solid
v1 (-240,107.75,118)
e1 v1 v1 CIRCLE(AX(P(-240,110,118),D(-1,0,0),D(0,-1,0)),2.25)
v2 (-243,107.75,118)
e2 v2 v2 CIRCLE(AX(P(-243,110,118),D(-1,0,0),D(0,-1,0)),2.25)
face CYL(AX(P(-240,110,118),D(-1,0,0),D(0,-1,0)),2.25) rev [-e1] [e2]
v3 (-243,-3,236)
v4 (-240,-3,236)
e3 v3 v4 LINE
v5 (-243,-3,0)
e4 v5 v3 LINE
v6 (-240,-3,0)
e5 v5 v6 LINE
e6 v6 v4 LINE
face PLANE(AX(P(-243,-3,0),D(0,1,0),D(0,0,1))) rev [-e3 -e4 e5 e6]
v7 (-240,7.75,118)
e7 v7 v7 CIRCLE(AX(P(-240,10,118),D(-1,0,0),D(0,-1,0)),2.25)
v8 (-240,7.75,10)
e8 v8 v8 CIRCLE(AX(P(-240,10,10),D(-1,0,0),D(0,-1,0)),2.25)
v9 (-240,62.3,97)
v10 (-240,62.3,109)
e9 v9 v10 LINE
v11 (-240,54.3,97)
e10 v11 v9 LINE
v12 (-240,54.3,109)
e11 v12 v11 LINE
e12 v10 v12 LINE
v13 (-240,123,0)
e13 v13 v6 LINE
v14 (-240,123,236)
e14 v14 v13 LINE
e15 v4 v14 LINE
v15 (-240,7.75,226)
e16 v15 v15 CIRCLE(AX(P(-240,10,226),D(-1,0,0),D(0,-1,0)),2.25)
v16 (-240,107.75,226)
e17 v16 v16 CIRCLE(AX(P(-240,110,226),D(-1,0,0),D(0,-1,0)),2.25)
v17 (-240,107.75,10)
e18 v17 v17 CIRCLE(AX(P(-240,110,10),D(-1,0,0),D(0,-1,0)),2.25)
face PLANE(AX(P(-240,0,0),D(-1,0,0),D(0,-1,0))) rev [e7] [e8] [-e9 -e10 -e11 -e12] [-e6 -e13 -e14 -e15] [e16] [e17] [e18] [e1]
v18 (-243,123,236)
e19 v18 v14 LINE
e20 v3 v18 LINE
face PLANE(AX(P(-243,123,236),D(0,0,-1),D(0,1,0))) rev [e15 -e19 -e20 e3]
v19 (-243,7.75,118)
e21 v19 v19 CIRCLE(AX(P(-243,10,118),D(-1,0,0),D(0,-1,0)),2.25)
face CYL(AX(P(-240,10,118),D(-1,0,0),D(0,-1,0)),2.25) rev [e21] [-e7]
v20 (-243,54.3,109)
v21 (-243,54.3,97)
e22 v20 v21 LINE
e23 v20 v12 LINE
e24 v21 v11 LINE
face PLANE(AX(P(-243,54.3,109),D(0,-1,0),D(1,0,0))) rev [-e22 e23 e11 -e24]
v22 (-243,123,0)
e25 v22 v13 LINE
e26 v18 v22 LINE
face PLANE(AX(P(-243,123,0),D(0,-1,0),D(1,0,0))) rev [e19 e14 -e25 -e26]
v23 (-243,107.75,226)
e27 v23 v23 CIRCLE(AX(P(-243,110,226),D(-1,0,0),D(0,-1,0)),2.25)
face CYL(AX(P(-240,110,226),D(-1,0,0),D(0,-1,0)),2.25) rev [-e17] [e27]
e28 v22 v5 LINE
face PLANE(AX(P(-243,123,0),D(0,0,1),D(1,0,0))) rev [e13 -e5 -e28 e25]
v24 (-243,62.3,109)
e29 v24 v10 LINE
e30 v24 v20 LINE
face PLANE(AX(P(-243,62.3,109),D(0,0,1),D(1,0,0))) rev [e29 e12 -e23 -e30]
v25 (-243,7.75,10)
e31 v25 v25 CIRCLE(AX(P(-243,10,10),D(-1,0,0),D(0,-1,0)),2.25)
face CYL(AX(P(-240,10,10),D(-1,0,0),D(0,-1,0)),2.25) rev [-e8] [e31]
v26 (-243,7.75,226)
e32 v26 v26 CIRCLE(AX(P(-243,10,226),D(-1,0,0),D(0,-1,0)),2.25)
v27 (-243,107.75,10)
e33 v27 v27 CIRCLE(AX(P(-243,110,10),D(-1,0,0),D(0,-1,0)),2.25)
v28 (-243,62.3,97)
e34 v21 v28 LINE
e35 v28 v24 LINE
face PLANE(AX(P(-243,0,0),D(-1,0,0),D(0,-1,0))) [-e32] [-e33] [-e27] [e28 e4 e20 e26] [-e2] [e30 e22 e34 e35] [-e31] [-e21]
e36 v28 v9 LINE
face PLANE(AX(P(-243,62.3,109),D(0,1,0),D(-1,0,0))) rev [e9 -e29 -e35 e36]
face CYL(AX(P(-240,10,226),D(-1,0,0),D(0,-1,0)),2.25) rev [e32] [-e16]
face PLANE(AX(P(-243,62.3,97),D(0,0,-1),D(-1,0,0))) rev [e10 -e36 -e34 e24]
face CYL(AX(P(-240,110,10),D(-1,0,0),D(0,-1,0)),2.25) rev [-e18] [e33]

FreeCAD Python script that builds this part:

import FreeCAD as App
import Part
import Sketcher
from FreeCAD import Vector

doc = App.newDocument("Part")
body = doc.addObject("PartDesign::Body", "Body")

sketch1 = body.newObject("Sketcher::SketchObject", "Sketch")
sketch1.AttachmentSupport = (doc.getObject("YZ_Plane"), [""])
sketch1.MapMode = "FlatFace"
sketch1.AttachmentOffset = App.Placement(Vector(0, 0, -240), App.Rotation())
sketch1.addGeometry(Part.LineSegment(Vector(123, 0, 0), Vector(-3, 0, 0)), False)
sketch1.addGeometry(Part.LineSegment(Vector(-3, 0, 0), Vector(-3, 236, 0)), False)
sketch1.addGeometry(Part.LineSegment(Vector(-3, 236, 0), Vector(123, 236, 0)), False)
sketch1.addGeometry(Part.LineSegment(Vector(123, 236, 0), Vector(123, 0, 0)), False)
sketch1.addConstraint(Sketcher.Constraint("Coincident", 0, 2, 1, 1))
sketch1.addConstraint(Sketcher.Constraint("Coincident", 1, 2, 2, 1))
sketch1.addConstraint(Sketcher.Constraint("Coincident", 2, 2, 3, 1))
sketch1.addConstraint(Sketcher.Constraint("Coincident", 3, 2, 0, 1))
sketch1.addConstraint(Sketcher.Constraint("Horizontal", 0))
sketch1.addConstraint(Sketcher.Constraint("Vertical", 1))
sketch1.addConstraint(Sketcher.Constraint("Horizontal", 2))
sketch1.addConstraint(Sketcher.Constraint("Vertical", 3))
sketch1.addConstraint(Sketcher.Constraint("PointOnObject", 0, 2, -1))
sketch1.addConstraint(Sketcher.Constraint("DistanceX", 0, 2, 0, 1, 126.0))
sketch1.addConstraint(Sketcher.Constraint("DistanceY", 1, 1, 1, 2, 236.0))
sketch1.addConstraint(Sketcher.Constraint("DistanceX", 0, 2, -1, 1, 3.0))
pad1 = body.newObject("PartDesign::Pad", "Pad")
pad1.Profile = sketch1
pad1.Length = 3
pad1.Reversed = True

sketch2 = body.newObject("Sketcher::SketchObject", "Sketch001")
sketch2.AttachmentSupport = (doc.getObject("YZ_Plane"), [""])
sketch2.MapMode = "FlatFace"
sketch2.AttachmentOffset = App.Placement(Vector(0, 0, -243), App.Rotation())
sketch2.addGeometry(Part.Circle(Vector(110, 226, 0), Vector(0, 0, 1), 2.2), False)
sketch2.addGeometry(Part.Circle(Vector(110, 118, 0), Vector(0, 0, 1), 2.2), False)
sketch2.addGeometry(Part.Circle(Vector(110, 10, 0), Vector(0, 0, 1), 2.2), False)
sketch2.addGeometry(Part.Circle(Vector(10, 226, 0), Vector(0, 0, 1), 2.2), False)
sketch2.addGeometry(Part.Circle(Vector(10, 118, 0), Vector(0, 0, 1), 2.2), False)
sketch2.addGeometry(Part.Circle(Vector(10, 10, 0), Vector(0, 0, 1), 2.2), False)
sketch2.addConstraint(Sketcher.Constraint("Equal", 0, 1))
sketch2.addConstraint(Sketcher.Constraint("Equal", 1, 2))
sketch2.addConstraint(Sketcher.Constraint("Equal", 2, 3))
sketch2.addConstraint(Sketcher.Constraint("Equal", 3, 4))
sketch2.addConstraint(Sketcher.Constraint("Equal", 4, 5))
sketch2.addConstraint(Sketcher.Constraint("Horizontal", 0, 3, 3, 3))
sketch2.addConstraint(Sketcher.Constraint("Horizontal", 1, 3, 4, 3))
sketch2.addConstraint(Sketcher.Constraint("Horizontal", 2, 3, 5, 3))
sketch2.addConstraint(Sketcher.Constraint("Vertical", 0, 3, 1, 3))
sketch2.addConstraint(Sketcher.Constraint("Vertical", 1, 3, 2, 3))
sketch2.addConstraint(Sketcher.Constraint("Vertical", 3, 3, 4, 3))
sketch2.addConstraint(Sketcher.Constraint("Vertical", 4, 3, 5, 3))
sketch2.addConstraint(Sketcher.Constraint("Diameter", 0, 4.5))
sketch2.addConstraint(Sketcher.Constraint("DistanceX", -1, 1, 0, 3, 110.0))
sketch2.addConstraint(Sketcher.Constraint("DistanceY", -1, 1, 0, 3, 226.0))
sketch2.addConstraint(Sketcher.Constraint("DistanceY", -1, 1, 1, 3, 118.0))
sketch2.addConstraint(Sketcher.Constraint("DistanceY", -1, 1, 2, 3, 10.0))
sketch2.addConstraint(Sketcher.Constraint("DistanceX", -1, 1, 3, 3, 10.0))
pocket1 = body.newObject("PartDesign::Pocket", "Pocket")
pocket1.Profile = sketch2
pocket1.Type = "ThroughAll"
pocket1.Reversed = True

sketch3 = body.newObject("Sketcher::SketchObject", "Sketch002")
sketch3.AttachmentSupport = (doc.getObject("YZ_Plane"), [""])
sketch3.MapMode = "FlatFace"
sketch3.AttachmentOffset = App.Placement(Vector(0, 0, -240), App.Rotation())
sketch3.addGeometry(Part.LineSegment(Vector(62, 109, 0), Vector(54, 109, 0)), False)
sketch3.addGeometry(Part.LineSegment(Vector(54, 109, 0), Vector(54, 97, 0)), False)
sketch3.addGeometry(Part.LineSegment(Vector(54, 97, 0), Vector(62, 97, 0)), False)
sketch3.addGeometry(Part.LineSegment(Vector(62, 97, 0), Vector(62, 109, 0)), False)
sketch3.addConstraint(Sketcher.Constraint("Coincident", 0, 2, 1, 1))
sketch3.addConstraint(Sketcher.Constraint("Coincident", 1, 2, 2, 1))
sketch3.addConstraint(Sketcher.Constraint("Coincident", 2, 2, 3, 1))
sketch3.addConstraint(Sketcher.Constraint("Coincident", 3, 2, 0, 1))
sketch3.addConstraint(Sketcher.Constraint("Horizontal", 0))
sketch3.addConstraint(Sketcher.Constraint("Vertical", 1))
sketch3.addConstraint(Sketcher.Constraint("Horizontal", 2))
sketch3.addConstraint(Sketcher.Constraint("Vertical", 3))
sketch3.addConstraint(Sketcher.Constraint("DistanceX", 0, 2, 0, 1, 8.0))
sketch3.addConstraint(Sketcher.Constraint("DistanceY", 1, 2, 1, 1, 12.0))
sketch3.addConstraint(Sketcher.Constraint("DistanceY", -1, 1, 0, 2, 109.0))
sketch3.addConstraint(Sketcher.Constraint("DistanceX", -1, 1, 0, 2, 54.3))
pocket2 = body.newObject("PartDesign::Pocket", "Pocket001")
pocket2.Profile = sketch3
pocket2.Type = "ThroughAll"

doc.recompute()
